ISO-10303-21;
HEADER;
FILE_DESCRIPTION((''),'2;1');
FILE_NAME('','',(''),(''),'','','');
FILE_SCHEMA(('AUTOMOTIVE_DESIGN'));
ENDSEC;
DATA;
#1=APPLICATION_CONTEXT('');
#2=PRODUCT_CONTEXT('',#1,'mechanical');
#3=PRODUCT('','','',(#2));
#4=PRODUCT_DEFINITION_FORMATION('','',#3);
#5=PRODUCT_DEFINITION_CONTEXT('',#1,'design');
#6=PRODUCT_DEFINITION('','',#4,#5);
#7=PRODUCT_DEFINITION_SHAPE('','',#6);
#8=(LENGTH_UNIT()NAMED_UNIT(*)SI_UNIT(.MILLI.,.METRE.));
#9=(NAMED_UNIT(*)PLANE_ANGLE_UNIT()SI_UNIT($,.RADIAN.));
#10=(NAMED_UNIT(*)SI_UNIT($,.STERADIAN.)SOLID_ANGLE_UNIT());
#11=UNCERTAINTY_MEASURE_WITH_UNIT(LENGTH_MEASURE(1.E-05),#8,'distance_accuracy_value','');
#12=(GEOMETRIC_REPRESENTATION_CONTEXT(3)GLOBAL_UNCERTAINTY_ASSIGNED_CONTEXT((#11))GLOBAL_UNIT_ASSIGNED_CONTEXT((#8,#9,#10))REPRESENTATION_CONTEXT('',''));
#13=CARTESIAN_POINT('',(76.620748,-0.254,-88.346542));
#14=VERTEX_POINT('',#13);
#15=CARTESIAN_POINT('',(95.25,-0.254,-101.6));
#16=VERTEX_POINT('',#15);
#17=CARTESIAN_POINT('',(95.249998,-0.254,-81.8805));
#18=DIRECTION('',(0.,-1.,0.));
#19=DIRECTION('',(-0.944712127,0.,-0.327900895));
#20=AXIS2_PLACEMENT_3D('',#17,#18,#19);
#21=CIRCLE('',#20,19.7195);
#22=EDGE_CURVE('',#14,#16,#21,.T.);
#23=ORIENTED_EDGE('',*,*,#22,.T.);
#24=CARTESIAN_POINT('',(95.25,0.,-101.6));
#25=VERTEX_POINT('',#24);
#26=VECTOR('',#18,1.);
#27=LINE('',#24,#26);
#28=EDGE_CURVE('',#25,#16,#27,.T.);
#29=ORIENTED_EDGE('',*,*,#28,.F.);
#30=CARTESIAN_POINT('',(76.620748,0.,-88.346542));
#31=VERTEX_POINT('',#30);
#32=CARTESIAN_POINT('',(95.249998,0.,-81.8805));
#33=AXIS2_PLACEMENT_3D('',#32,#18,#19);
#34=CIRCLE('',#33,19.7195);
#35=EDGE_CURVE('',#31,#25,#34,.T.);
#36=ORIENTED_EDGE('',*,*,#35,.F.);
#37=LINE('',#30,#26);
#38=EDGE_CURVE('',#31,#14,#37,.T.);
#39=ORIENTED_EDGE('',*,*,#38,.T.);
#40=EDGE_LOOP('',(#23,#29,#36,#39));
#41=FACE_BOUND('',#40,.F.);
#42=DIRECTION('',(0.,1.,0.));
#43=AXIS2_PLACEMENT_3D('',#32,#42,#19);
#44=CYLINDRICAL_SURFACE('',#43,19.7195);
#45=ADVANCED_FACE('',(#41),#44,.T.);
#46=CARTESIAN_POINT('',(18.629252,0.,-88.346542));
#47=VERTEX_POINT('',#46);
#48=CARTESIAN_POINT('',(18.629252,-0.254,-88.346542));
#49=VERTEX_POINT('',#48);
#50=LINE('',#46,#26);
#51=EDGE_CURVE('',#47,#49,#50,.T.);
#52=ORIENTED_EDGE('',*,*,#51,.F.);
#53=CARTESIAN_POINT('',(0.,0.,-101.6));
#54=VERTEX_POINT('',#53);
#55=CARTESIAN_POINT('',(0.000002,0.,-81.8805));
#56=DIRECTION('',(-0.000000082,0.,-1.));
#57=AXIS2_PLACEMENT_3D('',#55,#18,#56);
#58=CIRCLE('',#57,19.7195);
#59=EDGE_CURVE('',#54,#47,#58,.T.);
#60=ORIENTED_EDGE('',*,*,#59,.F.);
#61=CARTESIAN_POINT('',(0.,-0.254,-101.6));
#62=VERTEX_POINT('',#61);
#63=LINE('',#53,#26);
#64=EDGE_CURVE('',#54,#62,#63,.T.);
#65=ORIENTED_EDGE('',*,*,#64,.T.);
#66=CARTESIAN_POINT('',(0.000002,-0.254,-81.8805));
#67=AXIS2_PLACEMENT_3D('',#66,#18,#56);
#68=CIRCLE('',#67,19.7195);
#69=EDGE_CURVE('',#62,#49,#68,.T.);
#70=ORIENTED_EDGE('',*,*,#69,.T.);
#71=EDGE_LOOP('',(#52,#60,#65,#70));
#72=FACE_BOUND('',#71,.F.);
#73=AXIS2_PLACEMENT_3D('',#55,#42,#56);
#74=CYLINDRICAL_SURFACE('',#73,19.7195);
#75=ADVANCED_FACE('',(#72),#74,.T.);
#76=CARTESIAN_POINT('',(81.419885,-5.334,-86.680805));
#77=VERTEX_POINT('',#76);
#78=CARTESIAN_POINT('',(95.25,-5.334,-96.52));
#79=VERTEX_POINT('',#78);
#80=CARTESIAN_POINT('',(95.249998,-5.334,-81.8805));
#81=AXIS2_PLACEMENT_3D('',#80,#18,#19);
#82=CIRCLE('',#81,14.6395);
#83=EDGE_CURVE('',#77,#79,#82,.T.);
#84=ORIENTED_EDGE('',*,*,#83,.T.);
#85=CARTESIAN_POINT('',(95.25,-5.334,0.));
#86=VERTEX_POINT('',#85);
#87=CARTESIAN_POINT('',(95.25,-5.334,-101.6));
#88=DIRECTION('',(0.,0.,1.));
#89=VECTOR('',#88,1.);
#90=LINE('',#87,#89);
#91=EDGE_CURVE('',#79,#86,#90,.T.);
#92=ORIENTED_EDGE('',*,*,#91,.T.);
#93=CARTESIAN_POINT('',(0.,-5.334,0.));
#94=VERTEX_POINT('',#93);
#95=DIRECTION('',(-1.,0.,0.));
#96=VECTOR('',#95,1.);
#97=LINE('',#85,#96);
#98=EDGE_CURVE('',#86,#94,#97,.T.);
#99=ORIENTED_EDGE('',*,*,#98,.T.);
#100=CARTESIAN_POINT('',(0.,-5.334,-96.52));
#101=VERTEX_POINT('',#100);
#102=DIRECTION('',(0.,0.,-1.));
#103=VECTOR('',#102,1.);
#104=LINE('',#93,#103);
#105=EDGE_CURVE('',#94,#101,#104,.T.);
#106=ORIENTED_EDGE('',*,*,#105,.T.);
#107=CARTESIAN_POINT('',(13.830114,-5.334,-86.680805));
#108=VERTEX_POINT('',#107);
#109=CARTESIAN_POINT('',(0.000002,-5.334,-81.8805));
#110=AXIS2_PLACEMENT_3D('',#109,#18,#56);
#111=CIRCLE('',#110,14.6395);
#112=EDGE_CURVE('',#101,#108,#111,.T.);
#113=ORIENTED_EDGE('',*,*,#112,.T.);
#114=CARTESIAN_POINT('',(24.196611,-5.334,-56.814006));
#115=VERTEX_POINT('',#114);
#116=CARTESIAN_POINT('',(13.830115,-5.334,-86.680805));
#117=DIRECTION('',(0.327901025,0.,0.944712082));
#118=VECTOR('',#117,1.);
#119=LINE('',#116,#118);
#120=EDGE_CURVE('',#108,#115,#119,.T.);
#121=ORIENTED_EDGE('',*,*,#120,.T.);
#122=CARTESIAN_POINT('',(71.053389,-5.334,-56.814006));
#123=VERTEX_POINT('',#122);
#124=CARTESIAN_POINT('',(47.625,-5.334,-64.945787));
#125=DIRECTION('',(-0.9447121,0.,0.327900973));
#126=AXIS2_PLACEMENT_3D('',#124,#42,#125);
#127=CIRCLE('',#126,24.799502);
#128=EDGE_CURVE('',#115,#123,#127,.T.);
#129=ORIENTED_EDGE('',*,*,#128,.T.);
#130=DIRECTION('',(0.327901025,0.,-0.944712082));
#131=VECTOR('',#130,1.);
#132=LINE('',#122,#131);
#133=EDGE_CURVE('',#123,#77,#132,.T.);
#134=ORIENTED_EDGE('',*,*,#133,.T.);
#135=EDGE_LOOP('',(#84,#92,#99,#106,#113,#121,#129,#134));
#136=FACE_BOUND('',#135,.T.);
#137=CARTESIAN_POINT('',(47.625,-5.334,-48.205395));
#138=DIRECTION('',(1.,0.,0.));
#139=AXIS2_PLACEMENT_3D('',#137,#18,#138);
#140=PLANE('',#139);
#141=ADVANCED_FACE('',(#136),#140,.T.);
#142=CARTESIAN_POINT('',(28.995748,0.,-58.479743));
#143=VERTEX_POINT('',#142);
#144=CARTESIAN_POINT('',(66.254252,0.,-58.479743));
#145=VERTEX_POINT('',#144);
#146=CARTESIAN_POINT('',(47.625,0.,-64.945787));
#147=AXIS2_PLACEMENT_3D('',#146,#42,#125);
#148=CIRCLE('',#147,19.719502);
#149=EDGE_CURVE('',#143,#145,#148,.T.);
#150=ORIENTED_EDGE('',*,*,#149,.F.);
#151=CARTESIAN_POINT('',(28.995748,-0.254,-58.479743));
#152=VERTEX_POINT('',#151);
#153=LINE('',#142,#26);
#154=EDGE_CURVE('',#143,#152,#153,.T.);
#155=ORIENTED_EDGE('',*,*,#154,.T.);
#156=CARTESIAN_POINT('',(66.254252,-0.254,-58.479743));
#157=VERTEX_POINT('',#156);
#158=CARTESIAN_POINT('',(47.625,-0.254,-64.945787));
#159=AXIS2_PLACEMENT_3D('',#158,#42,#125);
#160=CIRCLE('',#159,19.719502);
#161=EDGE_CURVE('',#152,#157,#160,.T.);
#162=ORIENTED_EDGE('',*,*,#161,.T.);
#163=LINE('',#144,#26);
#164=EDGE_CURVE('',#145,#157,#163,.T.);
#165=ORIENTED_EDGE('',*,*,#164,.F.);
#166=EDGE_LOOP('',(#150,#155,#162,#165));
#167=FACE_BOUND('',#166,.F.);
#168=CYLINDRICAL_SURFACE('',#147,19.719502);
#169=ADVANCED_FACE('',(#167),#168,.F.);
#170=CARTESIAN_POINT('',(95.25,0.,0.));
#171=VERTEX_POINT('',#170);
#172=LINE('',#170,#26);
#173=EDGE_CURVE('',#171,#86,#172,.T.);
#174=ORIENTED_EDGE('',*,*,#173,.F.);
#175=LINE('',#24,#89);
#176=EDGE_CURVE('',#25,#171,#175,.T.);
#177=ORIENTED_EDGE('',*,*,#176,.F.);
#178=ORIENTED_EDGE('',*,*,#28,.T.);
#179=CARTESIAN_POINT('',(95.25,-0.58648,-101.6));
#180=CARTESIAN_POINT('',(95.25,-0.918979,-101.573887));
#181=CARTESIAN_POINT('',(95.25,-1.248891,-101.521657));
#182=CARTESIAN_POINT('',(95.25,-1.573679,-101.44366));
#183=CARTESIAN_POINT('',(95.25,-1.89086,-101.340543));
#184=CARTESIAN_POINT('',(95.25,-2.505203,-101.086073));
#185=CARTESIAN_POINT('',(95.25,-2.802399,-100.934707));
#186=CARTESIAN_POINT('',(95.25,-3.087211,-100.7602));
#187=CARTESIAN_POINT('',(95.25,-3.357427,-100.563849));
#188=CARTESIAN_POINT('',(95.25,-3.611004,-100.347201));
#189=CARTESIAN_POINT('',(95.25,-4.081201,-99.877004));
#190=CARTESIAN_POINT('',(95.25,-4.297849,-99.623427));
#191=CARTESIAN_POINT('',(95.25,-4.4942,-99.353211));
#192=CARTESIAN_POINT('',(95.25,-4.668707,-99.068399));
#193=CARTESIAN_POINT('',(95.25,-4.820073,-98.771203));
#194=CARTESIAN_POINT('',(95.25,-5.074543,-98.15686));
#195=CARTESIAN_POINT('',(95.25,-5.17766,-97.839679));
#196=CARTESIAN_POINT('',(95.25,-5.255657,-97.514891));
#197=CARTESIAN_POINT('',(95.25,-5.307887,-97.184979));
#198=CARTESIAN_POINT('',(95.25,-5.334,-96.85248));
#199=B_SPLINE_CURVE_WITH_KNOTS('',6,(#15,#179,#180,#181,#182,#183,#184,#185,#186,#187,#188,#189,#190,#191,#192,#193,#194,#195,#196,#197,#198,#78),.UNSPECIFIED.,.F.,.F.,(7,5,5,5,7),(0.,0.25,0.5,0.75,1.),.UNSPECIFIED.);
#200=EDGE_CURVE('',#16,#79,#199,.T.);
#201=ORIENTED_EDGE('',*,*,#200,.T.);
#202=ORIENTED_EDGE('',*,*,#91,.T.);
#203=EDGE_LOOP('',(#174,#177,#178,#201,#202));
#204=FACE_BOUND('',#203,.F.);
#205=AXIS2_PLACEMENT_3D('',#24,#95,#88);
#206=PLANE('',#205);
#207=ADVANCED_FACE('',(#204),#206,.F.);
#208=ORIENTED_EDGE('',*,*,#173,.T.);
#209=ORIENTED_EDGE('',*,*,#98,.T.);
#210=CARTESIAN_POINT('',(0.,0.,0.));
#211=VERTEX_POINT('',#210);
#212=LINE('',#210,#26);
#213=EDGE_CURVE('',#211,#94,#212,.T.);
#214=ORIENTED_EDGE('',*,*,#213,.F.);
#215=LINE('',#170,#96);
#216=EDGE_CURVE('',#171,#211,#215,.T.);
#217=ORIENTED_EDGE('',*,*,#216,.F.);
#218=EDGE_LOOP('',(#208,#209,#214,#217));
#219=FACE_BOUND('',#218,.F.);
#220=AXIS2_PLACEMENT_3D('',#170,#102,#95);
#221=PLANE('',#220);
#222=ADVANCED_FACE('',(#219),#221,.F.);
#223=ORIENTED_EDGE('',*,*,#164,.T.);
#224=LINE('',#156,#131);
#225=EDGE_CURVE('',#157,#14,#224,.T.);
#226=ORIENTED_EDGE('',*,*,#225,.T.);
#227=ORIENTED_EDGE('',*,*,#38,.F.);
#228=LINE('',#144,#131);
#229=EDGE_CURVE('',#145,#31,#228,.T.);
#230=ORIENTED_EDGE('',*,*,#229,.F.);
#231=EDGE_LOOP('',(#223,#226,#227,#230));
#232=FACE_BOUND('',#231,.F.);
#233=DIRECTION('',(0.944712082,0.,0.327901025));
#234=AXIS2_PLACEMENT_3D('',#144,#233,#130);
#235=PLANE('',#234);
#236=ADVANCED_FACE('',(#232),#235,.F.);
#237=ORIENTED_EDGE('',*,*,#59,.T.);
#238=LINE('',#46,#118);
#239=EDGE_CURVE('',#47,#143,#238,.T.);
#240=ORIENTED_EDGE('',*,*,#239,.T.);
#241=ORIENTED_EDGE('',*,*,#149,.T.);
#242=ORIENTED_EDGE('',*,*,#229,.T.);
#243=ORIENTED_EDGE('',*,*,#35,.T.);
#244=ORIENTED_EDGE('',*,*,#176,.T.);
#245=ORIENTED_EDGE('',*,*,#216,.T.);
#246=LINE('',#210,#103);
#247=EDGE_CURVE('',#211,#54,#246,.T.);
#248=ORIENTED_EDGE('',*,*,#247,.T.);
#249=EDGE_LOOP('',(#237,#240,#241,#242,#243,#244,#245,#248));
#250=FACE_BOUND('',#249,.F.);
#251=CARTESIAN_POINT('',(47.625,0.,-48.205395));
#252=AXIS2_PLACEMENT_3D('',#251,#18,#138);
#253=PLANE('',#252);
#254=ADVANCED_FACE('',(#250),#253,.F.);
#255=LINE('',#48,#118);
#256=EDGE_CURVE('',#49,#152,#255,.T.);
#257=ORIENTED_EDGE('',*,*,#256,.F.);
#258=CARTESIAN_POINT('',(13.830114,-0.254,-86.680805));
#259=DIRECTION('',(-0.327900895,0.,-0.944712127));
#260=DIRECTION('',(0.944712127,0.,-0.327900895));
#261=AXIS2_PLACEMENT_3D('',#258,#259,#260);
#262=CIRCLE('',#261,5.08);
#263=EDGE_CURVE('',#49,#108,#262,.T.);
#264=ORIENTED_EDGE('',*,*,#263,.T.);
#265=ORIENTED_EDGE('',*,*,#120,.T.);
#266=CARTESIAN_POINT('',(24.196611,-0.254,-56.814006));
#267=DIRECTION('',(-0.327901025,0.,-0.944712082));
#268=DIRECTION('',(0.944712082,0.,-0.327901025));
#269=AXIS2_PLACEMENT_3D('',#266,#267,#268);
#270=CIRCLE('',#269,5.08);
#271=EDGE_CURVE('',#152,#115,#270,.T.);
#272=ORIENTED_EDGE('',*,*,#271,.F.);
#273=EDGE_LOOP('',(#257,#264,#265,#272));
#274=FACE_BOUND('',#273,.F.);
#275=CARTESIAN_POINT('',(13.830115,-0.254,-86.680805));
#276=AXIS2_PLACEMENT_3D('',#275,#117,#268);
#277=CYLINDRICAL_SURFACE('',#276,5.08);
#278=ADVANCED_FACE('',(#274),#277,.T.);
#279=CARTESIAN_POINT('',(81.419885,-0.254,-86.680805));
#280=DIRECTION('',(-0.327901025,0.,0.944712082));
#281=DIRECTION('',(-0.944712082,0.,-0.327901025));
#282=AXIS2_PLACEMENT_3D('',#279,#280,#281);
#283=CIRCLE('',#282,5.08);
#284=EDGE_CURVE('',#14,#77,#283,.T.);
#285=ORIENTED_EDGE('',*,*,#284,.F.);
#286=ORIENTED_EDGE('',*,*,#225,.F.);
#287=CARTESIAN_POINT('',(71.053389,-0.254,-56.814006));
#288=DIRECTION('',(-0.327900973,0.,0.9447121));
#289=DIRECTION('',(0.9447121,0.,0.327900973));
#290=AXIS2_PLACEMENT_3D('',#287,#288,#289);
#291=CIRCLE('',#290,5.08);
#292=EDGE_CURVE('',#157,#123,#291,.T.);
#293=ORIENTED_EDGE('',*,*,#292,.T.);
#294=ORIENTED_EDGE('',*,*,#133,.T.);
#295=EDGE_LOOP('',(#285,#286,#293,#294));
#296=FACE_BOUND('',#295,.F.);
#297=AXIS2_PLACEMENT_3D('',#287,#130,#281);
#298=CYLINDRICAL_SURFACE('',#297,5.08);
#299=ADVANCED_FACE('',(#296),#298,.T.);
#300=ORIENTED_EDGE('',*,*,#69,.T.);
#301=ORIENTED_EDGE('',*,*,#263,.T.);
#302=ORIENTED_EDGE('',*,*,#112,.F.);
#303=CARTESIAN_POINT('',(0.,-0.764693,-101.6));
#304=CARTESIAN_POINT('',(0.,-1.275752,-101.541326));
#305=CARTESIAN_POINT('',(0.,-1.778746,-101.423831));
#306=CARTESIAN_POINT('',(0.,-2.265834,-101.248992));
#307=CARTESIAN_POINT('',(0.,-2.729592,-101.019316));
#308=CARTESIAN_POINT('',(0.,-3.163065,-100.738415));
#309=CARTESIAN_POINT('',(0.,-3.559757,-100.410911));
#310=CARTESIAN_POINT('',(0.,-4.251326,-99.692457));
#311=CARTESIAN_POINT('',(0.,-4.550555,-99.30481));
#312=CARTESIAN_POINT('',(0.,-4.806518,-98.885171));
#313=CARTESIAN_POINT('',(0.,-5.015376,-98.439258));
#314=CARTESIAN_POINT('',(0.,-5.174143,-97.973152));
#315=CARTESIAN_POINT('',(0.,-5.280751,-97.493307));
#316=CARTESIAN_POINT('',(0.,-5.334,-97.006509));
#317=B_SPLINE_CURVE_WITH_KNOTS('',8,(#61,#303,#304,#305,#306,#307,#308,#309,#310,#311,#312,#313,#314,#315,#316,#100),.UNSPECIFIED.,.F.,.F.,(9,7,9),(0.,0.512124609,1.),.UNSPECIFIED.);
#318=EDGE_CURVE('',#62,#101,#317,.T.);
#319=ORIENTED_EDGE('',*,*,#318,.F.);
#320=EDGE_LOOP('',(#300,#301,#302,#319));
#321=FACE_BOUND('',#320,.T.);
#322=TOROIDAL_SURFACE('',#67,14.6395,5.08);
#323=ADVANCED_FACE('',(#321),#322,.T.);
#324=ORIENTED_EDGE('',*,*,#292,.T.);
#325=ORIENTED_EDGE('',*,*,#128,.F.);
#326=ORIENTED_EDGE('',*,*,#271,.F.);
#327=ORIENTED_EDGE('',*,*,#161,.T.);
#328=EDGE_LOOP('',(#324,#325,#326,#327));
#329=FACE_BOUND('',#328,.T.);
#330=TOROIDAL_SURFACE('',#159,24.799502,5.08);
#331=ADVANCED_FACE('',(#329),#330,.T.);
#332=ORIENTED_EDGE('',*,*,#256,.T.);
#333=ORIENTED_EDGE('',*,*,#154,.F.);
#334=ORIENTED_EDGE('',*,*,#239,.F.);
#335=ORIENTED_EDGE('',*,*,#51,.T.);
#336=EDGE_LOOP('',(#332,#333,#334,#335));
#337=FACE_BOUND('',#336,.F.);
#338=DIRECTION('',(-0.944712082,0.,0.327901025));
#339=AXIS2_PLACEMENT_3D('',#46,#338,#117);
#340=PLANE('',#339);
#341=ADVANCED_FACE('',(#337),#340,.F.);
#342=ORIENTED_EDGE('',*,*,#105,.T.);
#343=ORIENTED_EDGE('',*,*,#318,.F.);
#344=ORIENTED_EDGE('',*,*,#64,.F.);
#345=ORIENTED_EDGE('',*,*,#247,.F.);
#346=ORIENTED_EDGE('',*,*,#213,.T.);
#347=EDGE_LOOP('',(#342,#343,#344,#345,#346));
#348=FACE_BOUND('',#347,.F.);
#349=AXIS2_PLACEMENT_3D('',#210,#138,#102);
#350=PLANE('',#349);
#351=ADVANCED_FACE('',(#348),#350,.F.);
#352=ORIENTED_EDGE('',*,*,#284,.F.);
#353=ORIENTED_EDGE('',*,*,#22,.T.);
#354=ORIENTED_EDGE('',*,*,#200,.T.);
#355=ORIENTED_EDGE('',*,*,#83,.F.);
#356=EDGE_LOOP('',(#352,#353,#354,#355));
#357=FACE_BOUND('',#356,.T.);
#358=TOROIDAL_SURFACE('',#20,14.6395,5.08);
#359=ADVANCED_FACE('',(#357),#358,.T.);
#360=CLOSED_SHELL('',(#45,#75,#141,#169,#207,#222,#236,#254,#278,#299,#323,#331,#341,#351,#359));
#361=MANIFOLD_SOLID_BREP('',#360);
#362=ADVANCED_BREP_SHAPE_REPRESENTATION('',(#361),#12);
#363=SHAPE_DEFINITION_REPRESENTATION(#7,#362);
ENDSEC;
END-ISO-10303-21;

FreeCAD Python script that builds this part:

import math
import FreeCAD as App
import Part
import Sketcher
from FreeCAD import Vector
Q = App.Units.Quantity


def edges_at(feature, points):
    """Names of the edges that pass closest to the given points."""
    edges = feature.Shape.Edges
    near = lambda p: min(range(len(edges)), key=lambda i: edges[i].distToShape(Part.Vertex(*p))[0])
    return sorted({f"Edge{near(p) + 1}" for p in points})

doc = App.newDocument("Part")
params = doc.addObject("Spreadsheet::Sheet", "Params")
for row, (alias, value) in enumerate([
    ("sketch1_height", "4 in"),
    ("sketch1_width", "3.75 in"),
    ("pad1_length", "0.21 in"),
    ("fillet_radius", "0.2 in"),
], start=1):
    params.set(f"A{row}", alias)
    params.set(f"B{row}", "=" + value)
    params.setAlias(f"B{row}", alias)

body = doc.addObject("PartDesign::Body", "Body")

sketch1 = body.newObject("Sketcher::SketchObject", "Sketch")
sketch1.AttachmentSupport = (doc.getObject("XZ_Plane"), [""])
sketch1.MapMode = "FlatFace"
sketch1.addGeometry([
    Part.LineSegment(Vector(95, 0, 0), Vector(0, 0, 0)),
    Part.LineSegment(Vector(0, 0, 0), Vector(0, -102, 0)),
    Part.ArcOfCircle(Part.Circle(Vector(0, -82, 0), Vector(0, 0, 1), 20), math.radians(-90), math.radians(-19)),
    Part.LineSegment(Vector(19, -88, 0), Vector(29, -58, 0)),
    Part.ArcOfCircle(Part.Circle(Vector(48, -65, 0), Vector(0, 0, 1), 20), math.radians(19), math.radians(161)),
    Part.LineSegment(Vector(66, -58, 0), Vector(77, -88, 0)),
    Part.ArcOfCircle(Part.Circle(Vector(95, -82, 0), Vector(0, 0, 1), 20), math.radians(-161), math.radians(-90)),
    Part.LineSegment(Vector(95, -102, 0), Vector(95, 0, 0)),
], False)
sketch1.addConstraint([
    Sketcher.Constraint("Coincident", 0, 2, 1, 1),
    Sketcher.Constraint("Coincident", 1, 2, 2, 1),
    Sketcher.Constraint("Tangent", 2, 2, 3, 1),
    Sketcher.Constraint("Tangent", 3, 2, 4, 2),
    Sketcher.Constraint("Tangent", 4, 1, 5, 1),
    Sketcher.Constraint("Tangent", 5, 2, 6, 1),
    Sketcher.Constraint("Coincident", 6, 2, 7, 1),
    Sketcher.Constraint("Coincident", 7, 2, 0, 1),
    Sketcher.Constraint("Horizontal", 0),
    Sketcher.Constraint("Vertical", 1),
    Sketcher.Constraint("Vertical", 7),
    Sketcher.Constraint("Coincident", 0, 2, -1, 1),
    Sketcher.Constraint("Equal", 2, 6),
    Sketcher.Constraint("PointOnObject", 2, 3, -2),
    Sketcher.Constraint("Horizontal", 2, 3, 6, 3),
    Sketcher.Constraint("Horizontal", 3, 2, 4, 1),
    Sketcher.Constraint("DistanceY", 1, 2, 1, 1, Q("4 in")),
    Sketcher.Constraint("DistanceX", 0, 2, 0, 1, Q("3.75 in")),
    Sketcher.Constraint("DistanceX", -1, 1, 6, 3, Q("3.7499999 in")),
    Sketcher.Constraint("Radius", 2, 19.7195),
    Sketcher.Constraint("Radius", 4, 19.719502),
    Sketcher.Constraint("DistanceY", 2, 2, 3, 2, 29.866799),
])
sketch1.setExpression("Constraints[16]", "Params.sketch1_height")
sketch1.setExpression("Constraints[17]", "Params.sketch1_width")
pad1 = body.newObject("PartDesign::Pad", "Pad")
pad1.Profile = sketch1
pad1.setExpression("Length", "Params.pad1_length")
doc.recompute()

fillet = body.newObject("PartDesign::Fillet", "Fillet")
fillet.Base = (pad1, edges_at(pad1, [(11.431, -5.334, -97.949)]))
fillet.setExpression("Radius", "Params.fillet_radius")

doc.recompute()
